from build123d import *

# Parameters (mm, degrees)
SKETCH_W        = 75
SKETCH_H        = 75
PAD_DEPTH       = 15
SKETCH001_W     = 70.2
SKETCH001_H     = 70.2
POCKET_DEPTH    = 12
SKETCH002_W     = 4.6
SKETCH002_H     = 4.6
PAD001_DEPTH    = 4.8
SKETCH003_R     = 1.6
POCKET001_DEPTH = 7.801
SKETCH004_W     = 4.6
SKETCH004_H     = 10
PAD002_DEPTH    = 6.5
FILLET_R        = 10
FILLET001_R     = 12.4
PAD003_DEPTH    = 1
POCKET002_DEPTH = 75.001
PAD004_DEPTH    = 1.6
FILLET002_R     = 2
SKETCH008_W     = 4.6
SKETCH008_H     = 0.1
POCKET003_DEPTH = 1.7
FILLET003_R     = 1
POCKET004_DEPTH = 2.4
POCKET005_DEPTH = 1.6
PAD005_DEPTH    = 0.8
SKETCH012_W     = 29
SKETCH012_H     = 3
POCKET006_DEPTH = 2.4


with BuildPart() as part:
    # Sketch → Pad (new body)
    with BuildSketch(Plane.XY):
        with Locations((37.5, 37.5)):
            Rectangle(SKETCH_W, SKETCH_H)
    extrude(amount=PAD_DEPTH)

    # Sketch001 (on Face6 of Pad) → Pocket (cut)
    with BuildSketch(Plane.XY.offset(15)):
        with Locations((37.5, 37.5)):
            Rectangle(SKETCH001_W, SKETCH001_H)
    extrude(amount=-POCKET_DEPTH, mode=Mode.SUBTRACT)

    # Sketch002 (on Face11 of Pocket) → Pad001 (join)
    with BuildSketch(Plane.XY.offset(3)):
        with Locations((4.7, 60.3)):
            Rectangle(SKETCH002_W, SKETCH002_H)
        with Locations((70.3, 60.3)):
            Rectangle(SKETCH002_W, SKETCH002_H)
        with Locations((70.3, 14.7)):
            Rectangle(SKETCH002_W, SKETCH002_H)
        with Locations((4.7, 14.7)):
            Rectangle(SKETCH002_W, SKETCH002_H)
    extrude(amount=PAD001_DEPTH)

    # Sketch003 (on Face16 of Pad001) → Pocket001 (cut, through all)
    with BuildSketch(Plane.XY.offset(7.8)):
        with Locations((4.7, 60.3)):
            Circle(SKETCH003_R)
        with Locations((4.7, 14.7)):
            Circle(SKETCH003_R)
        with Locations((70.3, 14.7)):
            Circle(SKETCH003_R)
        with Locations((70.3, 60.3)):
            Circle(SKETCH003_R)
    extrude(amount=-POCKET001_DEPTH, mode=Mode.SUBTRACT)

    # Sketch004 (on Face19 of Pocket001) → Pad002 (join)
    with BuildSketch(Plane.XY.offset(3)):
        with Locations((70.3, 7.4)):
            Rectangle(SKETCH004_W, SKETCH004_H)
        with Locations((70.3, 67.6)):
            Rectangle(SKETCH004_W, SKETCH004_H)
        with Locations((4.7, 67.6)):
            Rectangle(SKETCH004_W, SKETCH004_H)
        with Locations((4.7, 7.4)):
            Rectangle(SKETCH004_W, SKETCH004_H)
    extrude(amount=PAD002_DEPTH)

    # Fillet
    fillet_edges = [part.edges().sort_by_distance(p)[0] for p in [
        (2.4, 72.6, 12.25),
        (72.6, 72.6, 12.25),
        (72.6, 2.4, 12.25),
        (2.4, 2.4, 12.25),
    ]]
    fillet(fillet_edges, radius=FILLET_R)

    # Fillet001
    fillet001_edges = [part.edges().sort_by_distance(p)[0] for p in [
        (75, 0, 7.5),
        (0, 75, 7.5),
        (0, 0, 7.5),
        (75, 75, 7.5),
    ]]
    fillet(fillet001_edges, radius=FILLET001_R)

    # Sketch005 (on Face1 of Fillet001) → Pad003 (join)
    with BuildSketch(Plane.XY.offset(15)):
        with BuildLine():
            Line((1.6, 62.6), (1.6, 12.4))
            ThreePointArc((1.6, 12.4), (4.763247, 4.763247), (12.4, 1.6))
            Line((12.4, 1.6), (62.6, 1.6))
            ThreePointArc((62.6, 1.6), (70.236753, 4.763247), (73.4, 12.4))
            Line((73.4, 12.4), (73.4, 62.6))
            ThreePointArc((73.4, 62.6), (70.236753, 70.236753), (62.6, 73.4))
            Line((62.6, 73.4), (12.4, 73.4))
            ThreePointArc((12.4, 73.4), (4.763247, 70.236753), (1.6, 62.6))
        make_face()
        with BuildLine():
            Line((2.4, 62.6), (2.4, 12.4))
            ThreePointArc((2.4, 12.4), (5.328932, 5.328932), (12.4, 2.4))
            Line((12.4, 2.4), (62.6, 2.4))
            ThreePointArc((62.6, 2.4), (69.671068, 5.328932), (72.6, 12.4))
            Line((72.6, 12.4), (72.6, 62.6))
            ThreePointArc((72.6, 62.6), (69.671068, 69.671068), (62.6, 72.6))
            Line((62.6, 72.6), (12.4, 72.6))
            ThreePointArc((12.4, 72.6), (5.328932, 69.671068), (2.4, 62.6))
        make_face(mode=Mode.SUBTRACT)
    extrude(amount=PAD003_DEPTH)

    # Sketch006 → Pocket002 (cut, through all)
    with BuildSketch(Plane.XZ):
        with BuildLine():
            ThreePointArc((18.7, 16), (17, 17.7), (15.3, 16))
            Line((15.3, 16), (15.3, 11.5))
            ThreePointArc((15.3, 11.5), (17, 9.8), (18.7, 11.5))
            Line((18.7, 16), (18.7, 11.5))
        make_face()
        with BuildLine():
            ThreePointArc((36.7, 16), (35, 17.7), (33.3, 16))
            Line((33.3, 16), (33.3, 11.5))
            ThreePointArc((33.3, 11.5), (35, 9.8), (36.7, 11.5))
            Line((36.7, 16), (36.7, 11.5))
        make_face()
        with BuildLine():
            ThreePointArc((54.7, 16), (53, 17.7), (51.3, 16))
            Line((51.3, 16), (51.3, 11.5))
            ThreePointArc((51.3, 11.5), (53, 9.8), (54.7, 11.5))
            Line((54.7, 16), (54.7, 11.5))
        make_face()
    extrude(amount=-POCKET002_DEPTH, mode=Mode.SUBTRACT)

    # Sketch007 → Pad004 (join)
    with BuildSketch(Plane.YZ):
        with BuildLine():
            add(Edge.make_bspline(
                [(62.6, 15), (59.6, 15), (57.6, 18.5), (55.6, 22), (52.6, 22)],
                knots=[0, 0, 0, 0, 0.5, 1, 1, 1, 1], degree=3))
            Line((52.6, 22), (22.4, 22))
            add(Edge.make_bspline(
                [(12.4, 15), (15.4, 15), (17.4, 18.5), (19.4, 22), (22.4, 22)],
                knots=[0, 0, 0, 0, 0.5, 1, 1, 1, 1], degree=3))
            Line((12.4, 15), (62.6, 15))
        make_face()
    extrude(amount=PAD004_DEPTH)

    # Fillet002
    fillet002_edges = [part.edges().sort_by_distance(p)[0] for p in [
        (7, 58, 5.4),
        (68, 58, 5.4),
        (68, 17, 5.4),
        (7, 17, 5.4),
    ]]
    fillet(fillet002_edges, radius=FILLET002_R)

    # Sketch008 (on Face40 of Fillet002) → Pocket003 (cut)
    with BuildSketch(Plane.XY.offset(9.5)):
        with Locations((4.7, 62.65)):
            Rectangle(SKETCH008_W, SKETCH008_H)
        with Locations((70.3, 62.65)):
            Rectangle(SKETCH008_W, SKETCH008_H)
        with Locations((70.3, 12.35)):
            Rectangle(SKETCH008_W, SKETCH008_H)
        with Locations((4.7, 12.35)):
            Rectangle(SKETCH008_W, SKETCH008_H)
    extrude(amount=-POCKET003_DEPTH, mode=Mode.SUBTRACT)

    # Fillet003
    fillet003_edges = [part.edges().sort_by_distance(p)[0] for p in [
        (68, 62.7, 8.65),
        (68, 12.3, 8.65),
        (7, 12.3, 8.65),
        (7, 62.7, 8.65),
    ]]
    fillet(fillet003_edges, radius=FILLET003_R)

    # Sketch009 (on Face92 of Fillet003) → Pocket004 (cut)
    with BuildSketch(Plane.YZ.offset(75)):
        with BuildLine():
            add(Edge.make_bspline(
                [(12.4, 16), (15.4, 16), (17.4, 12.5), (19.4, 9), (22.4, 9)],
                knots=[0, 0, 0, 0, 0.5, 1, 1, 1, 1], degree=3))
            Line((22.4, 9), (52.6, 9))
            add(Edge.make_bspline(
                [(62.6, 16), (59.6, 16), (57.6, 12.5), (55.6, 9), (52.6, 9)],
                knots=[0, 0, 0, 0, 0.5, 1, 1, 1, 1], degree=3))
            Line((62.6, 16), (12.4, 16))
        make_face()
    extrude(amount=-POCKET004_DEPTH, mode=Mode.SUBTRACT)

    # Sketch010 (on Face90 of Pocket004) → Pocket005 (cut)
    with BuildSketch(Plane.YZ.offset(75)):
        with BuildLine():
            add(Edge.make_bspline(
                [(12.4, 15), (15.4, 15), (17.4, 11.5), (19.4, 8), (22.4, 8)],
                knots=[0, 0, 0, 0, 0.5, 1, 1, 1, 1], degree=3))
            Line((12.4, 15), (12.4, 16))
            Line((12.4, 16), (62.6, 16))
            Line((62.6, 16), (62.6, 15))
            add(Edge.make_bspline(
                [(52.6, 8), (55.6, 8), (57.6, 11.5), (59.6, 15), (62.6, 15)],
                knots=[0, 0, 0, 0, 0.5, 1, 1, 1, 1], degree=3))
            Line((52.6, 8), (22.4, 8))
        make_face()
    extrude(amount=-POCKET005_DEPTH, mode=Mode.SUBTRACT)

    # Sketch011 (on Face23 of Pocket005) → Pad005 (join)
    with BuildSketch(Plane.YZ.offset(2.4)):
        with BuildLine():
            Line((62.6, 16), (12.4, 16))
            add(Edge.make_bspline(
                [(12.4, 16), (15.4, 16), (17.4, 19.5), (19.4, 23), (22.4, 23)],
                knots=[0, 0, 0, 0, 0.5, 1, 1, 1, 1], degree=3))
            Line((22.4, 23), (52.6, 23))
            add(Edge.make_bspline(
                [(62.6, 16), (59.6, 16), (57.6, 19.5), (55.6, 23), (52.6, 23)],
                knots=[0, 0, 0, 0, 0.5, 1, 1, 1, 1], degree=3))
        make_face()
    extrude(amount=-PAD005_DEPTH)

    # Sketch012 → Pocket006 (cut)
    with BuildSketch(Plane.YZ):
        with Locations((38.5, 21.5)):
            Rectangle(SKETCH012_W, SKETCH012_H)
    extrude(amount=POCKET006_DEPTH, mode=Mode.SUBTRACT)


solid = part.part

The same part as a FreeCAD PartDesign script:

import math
import FreeCAD as App
import Part
import Sketcher

V = App.Vector


def edges_at(feature, points):
    """Names of the edges that pass closest to the given points."""
    edges = feature.Shape.Edges
    near = lambda p: min(range(len(edges)), key=lambda i: edges[i].distToShape(Part.Vertex(*p))[0])
    return sorted({f"Edge{near(p) + 1}" for p in points})

doc = App.newDocument("Part")
params = doc.addObject("Spreadsheet::Sheet", "Params")
for row, (alias, value) in enumerate([
    ("sketch1_width", "75 mm"),
    ("pad1_length", "15 mm"),
    ("sketch2_width", "70.2 mm"),
    ("pocket1_length", "12 mm"),
    ("sketch3_width", "4.6 mm"),
    ("pad2_length", "4.8 mm"),
    ("sketch4_diameter", "3.2 mm"),
    ("sketch5_height", "10 mm"),
    ("sketch5_width", "4.6 mm"),
    ("pad3_length", "6.5 mm"),
    ("fillet_radius", "10 mm"),
    ("fillet2_radius", "12.4 mm"),
    ("sketch6_radius", "9.999999 mm"),
    ("sketch6_radius2", "10.800001 mm"),
    ("sketch6_width", "50.2 mm"),
    ("pad4_length", "1 mm"),
    ("sketch7_radius", "1.7 mm"),
    ("sketch7_height", "4.5 mm"),
    ("pad5_length", "1.6 mm"),
    ("fillet3_radius", "2 mm"),
    ("sketch9_width", "4.6 mm"),
    ("sketch9_height", "0.1 mm"),
    ("pocket4_length", "1.7 mm"),
    ("fillet4_radius", "1 mm"),
    ("pocket5_length", "2.4 mm"),
    ("sketch11_height", "1 mm"),
    ("pocket6_length", "1.6 mm"),
    ("pad6_length", "0.8 mm"),
    ("sketch13_width", "29 mm"),
    ("sketch13_height", "3 mm"),
    ("pocket7_length", "2.4 mm"),
], start=1):
    params.set(f"A{row}", alias)
    params.set(f"B{row}", "=" + value)
    params.setAlias(f"B{row}", alias)

body = doc.addObject("PartDesign::Body", "Body")

sketch1 = body.newObject("Sketcher::SketchObject", "Sketch")
sketch1.AttachmentSupport = (doc.getObject("XY_Plane"), [""])
sketch1.MapMode = "FlatFace"
sketch1.addGeometry(Part.LineSegment(V(0, 75, 0), V(0, 0, 0)), False)
sketch1.addGeometry(Part.LineSegment(V(0, 0, 0), V(75, 0, 0)), False)
sketch1.addGeometry(Part.LineSegment(V(75, 0, 0), V(75, 75, 0)), False)
sketch1.addGeometry(Part.LineSegment(V(75, 75, 0), V(0, 75, 0)), False)
sketch1.addConstraint(Sketcher.Constraint("Coincident", 0, 2, 1, 1))
sketch1.addConstraint(Sketcher.Constraint("Coincident", 1, 2, 2, 1))
sketch1.addConstraint(Sketcher.Constraint("Coincident", 2, 2, 3, 1))
sketch1.addConstraint(Sketcher.Constraint("Coincident", 3, 2, 0, 1))
sketch1.addConstraint(Sketcher.Constraint("Vertical", 0))
sketch1.addConstraint(Sketcher.Constraint("Horizontal", 1))
sketch1.addConstraint(Sketcher.Constraint("Vertical", 2))
sketch1.addConstraint(Sketcher.Constraint("Horizontal", 3))
sketch1.addConstraint(Sketcher.Constraint("Coincident", 0, 2, -1, 1))
sketch1.addConstraint(Sketcher.Constraint("Equal", 3, 0))
sketch1.addConstraint(Sketcher.Constraint("DistanceX", 1, 1, 1, 2, 75.0))
sketch1.setExpression("Constraints[10]", "Params.sketch1_width")
pad1 = body.newObject("PartDesign::Pad", "Pad")
pad1.Profile = sketch1
pad1.setExpression("Length", "Params.pad1_length")

sketch2 = body.newObject("Sketcher::SketchObject", "Sketch001")
sketch2.AttachmentSupport = (doc.getObject("XY_Plane"), [""])
sketch2.MapMode = "FlatFace"
sketch2.AttachmentOffset = App.Placement(V(0, 0, 15), App.Rotation())
sketch2.addGeometry(Part.LineSegment(V(2, 73, 0), V(2, 2, 0)), False)
sketch2.addGeometry(Part.LineSegment(V(2, 2, 0), V(73, 2, 0)), False)
sketch2.addGeometry(Part.LineSegment(V(73, 2, 0), V(73, 73, 0)), False)
sketch2.addGeometry(Part.LineSegment(V(73, 73, 0), V(2, 73, 0)), False)
sketch2.addConstraint(Sketcher.Constraint("Coincident", 0, 2, 1, 1))
sketch2.addConstraint(Sketcher.Constraint("Coincident", 1, 2, 2, 1))
sketch2.addConstraint(Sketcher.Constraint("Coincident", 2, 2, 3, 1))
sketch2.addConstraint(Sketcher.Constraint("Coincident", 3, 2, 0, 1))
sketch2.addConstraint(Sketcher.Constraint("Vertical", 0))
sketch2.addConstraint(Sketcher.Constraint("Horizontal", 1))
sketch2.addConstraint(Sketcher.Constraint("Vertical", 2))
sketch2.addConstraint(Sketcher.Constraint("Horizontal", 3))
sketch2.addConstraint(Sketcher.Constraint("Equal", 3, 0))
sketch2.addConstraint(Sketcher.Constraint("DistanceX", 1, 1, 1, 2, 70.2))
sketch2.addConstraint(Sketcher.Constraint("DistanceX", -1, 1, 0, 2, 2.4))
sketch2.addConstraint(Sketcher.Constraint("DistanceY", -1, 1, 0, 2, 2.4))
sketch2.setExpression("Constraints[9]", "Params.sketch2_width")
pocket1 = body.newObject("PartDesign::Pocket", "Pocket")
pocket1.Profile = sketch2
pocket1.setExpression("Length", "Params.pocket1_length")

sketch3 = body.newObject("Sketcher::SketchObject", "Sketch002")
sketch3.AttachmentSupport = (doc.getObject("XY_Plane"), [""])
sketch3.MapMode = "FlatFace"
sketch3.AttachmentOffset = App.Placement(V(0, 0, 3), App.Rotation())
sketch3.addGeometry(Part.LineSegment(V(2.4, 62.6, 0), V(2.4, 58, 0)), False)
sketch3.addGeometry(Part.LineSegment(V(2.4, 58, 0), V(7, 58, 0)), False)
sketch3.addGeometry(Part.LineSegment(V(7, 58, 0), V(7, 62.6, 0)), False)
sketch3.addGeometry(Part.LineSegment(V(7, 62.6, 0), V(2.4, 62.6, 0)), False)
sketch3.addGeometry(Part.LineSegment(V(68, 62.6, 0), V(68, 58, 0)), False)
sketch3.addGeometry(Part.LineSegment(V(68, 58, 0), V(72.6, 58, 0)), False)
sketch3.addGeometry(Part.LineSegment(V(72.6, 58, 0), V(72.6, 62.6, 0)), False)
sketch3.addGeometry(Part.LineSegment(V(72.6, 62.6, 0), V(68, 62.6, 0)), False)
sketch3.addGeometry(Part.LineSegment(V(68, 17, 0), V(68, 12.4, 0)), False)
sketch3.addGeometry(Part.LineSegment(V(68, 12.4, 0), V(72.6, 12.4, 0)), False)
sketch3.addGeometry(Part.LineSegment(V(72.6, 12.4, 0), V(72.6, 17, 0)), False)
sketch3.addGeometry(Part.LineSegment(V(72.6, 17, 0), V(68, 17, 0)), False)
sketch3.addGeometry(Part.LineSegment(V(2.4, 17, 0), V(2.4, 12.4, 0)), False)
sketch3.addGeometry(Part.LineSegment(V(2.4, 12.4, 0), V(7, 12.4, 0)), False)
sketch3.addGeometry(Part.LineSegment(V(7, 12.4, 0), V(7, 17, 0)), False)
sketch3.addGeometry(Part.LineSegment(V(7, 17, 0), V(2.4, 17, 0)), False)
sketch3.addConstraint(Sketcher.Constraint("Coincident", 0, 2, 1, 1))
sketch3.addConstraint(Sketcher.Constraint("Coincident", 1, 2, 2, 1))
sketch3.addConstraint(Sketcher.Constraint("Coincident", 2, 2, 3, 1))
sketch3.addConstraint(Sketcher.Constraint("Coincident", 3, 2, 0, 1))
sketch3.addConstraint(Sketcher.Constraint("Coincident", 4, 2, 5, 1))
sketch3.addConstraint(Sketcher.Constraint("Coincident", 5, 2, 6, 1))
sketch3.addConstraint(Sketcher.Constraint("Coincident", 6, 2, 7, 1))
sketch3.addConstraint(Sketcher.Constraint("Coincident", 7, 2, 4, 1))
sketch3.addConstraint(Sketcher.Constraint("Coincident", 8, 2, 9, 1))
sketch3.addConstraint(Sketcher.Constraint("Coincident", 9, 2, 10, 1))
sketch3.addConstraint(Sketcher.Constraint("Coincident", 10, 2, 11, 1))
sketch3.addConstraint(Sketcher.Constraint("Coincident", 11, 2, 8, 1))
sketch3.addConstraint(Sketcher.Constraint("Coincident", 12, 2, 13, 1))
sketch3.addConstraint(Sketcher.Constraint("Coincident", 13, 2, 14, 1))
sketch3.addConstraint(Sketcher.Constraint("Coincident", 14, 2, 15, 1))
sketch3.addConstraint(Sketcher.Constraint("Coincident", 15, 2, 12, 1))
sketch3.addConstraint(Sketcher.Constraint("Vertical", 0))
sketch3.addConstraint(Sketcher.Constraint("Horizontal", 1))
sketch3.addConstraint(Sketcher.Constraint("Vertical", 2))
sketch3.addConstraint(Sketcher.Constraint("Horizontal", 3))
sketch3.addConstraint(Sketcher.Constraint("Vertical", 4))
sketch3.addConstraint(Sketcher.Constraint("Horizontal", 5))
sketch3.addConstraint(Sketcher.Constraint("Vertical", 6))
sketch3.addConstraint(Sketcher.Constraint("Horizontal", 7))
sketch3.addConstraint(Sketcher.Constraint("Vertical", 8))
sketch3.addConstraint(Sketcher.Constraint("Horizontal", 9))
sketch3.addConstraint(Sketcher.Constraint("Vertical", 10))
sketch3.addConstraint(Sketcher.Constraint("Horizontal", 11))
sketch3.addConstraint(Sketcher.Constraint("Vertical", 12))
sketch3.addConstraint(Sketcher.Constraint("Horizontal", 13))
sketch3.addConstraint(Sketcher.Constraint("Vertical", 14))
sketch3.addConstraint(Sketcher.Constraint("Horizontal", 15))
sketch3.addConstraint(Sketcher.Constraint("Horizontal", 1, 2, 4, 2))
sketch3.addConstraint(Sketcher.Constraint("Horizontal", 3, 2, 6, 2))
sketch3.addConstraint(Sketcher.Constraint("Horizontal", 9, 2, 12, 2))
sketch3.addConstraint(Sketcher.Constraint("Horizontal", 11, 2, 14, 2))
sketch3.addConstraint(Sketcher.Constraint("Vertical", 7, 2, 8, 2))
sketch3.addConstraint(Sketcher.Constraint("Vertical", 6, 2, 9, 2))
sketch3.addConstraint(Sketcher.Constraint("Vertical", 3, 2, 12, 2))
sketch3.addConstraint(Sketcher.Constraint("Vertical", 2, 2, 13, 2))
sketch3.addConstraint(Sketcher.Constraint("Equal", 3, 5))
sketch3.addConstraint(Sketcher.Constraint("Equal", 15, 0))
sketch3.addConstraint(Sketcher.Constraint("Equal", 6, 8))
sketch3.addConstraint(Sketcher.Constraint("DistanceX", 1, 1, 1, 2, 4.6))
sketch3.addConstraint(Sketcher.Constraint("DistanceY", -1, 1, 0, 2, 58.0))
sketch3.addConstraint(Sketcher.Constraint("DistanceX", -1, 1, 1, 2, 7.0))
sketch3.addConstraint(Sketcher.Constraint("DistanceX", -1, 1, 4, 2, 68.0))
sketch3.addConstraint(Sketcher.Constraint("DistanceY", -1, 1, 10, 2, 17.0))
sketch3.setExpression("Constraints[43]", "Params.sketch3_width")
pad2 = body.newObject("PartDesign::Pad", "Pad001")
pad2.Profile = sketch3
pad2.setExpression("Length", "Params.pad2_length")

sketch4 = body.newObject("Sketcher::SketchObject", "Sketch003")
sketch4.AttachmentSupport = (doc.getObject("XY_Plane"), [""])
sketch4.MapMode = "FlatFace"
sketch4.AttachmentOffset = App.Placement(V(0, 0, 7.8), App.Rotation())
sketch4.addGeometry(Part.Circle(V(4.7, 60.3, 0), V(0, 0, 1), 1.6), False)
sketch4.addGeometry(Part.Circle(V(4.7, 14.7, 0), V(0, 0, 1), 1.6), False)
sketch4.addGeometry(Part.Circle(V(70.3, 14.7, 0), V(0, 0, 1), 1.6), False)
sketch4.addGeometry(Part.Circle(V(70.3, 60.3, 0), V(0, 0, 1), 1.6), False)
sketch4.addConstraint(Sketcher.Constraint("Equal", 0, 1))
sketch4.addConstraint(Sketcher.Constraint("Equal", 1, 2))
sketch4.addConstraint(Sketcher.Constraint("Equal", 2, 3))
sketch4.addConstraint(Sketcher.Constraint("Horizontal", 1, 3, 2, 3))
sketch4.addConstraint(Sketcher.Constraint("Horizontal", 0, 3, 3, 3))
sketch4.addConstraint(Sketcher.Constraint("Vertical", 0, 3, 1, 3))
sketch4.addConstraint(Sketcher.Constraint("Vertical", 2, 3, 3, 3))
sketch4.addConstraint(Sketcher.Constraint("Diameter", 0, 3.2))
sketch4.addConstraint(Sketcher.Constraint("DistanceX", -1, 1, 0, 3, 4.7))
sketch4.addConstraint(Sketcher.Constraint("DistanceY", -1, 1, 0, 3, 60.3))
sketch4.addConstraint(Sketcher.Constraint("DistanceY", -1, 1, 1, 3, 14.7))
sketch4.addConstraint(Sketcher.Constraint("DistanceX", -1, 1, 2, 3, 70.3))
sketch4.setExpression("Constraints[7]", "Params.sketch4_diameter")
pocket2 = body.newObject("PartDesign::Pocket", "Pocket001")
pocket2.Profile = sketch4
pocket2.Type = "ThroughAll"

sketch5 = body.newObject("Sketcher::SketchObject", "Sketch004")
sketch5.AttachmentSupport = (doc.getObject("XY_Plane"), [""])
sketch5.MapMode = "FlatFace"
sketch5.AttachmentOffset = App.Placement(V(0, 0, 3), App.Rotation())
sketch5.addGeometry(Part.LineSegment(V(68, 12.4, 0), V(68, 2.4, 0)), False)
sketch5.addGeometry(Part.LineSegment(V(68, 2.4, 0), V(72.6, 2.4, 0)), False)
sketch5.addGeometry(Part.LineSegment(V(72.6, 2.4, 0), V(72.6, 12.4, 0)), False)
sketch5.addGeometry(Part.LineSegment(V(72.6, 12.4, 0), V(68, 12.4, 0)), False)
sketch5.addGeometry(Part.LineSegment(V(68, 72.6, 0), V(68, 62.6, 0)), False)
sketch5.addGeometry(Part.LineSegment(V(68, 62.6, 0), V(72.6, 62.6, 0)), False)
sketch5.addGeometry(Part.LineSegment(V(72.6, 62.6, 0), V(72.6, 72.6, 0)), False)
sketch5.addGeometry(Part.LineSegment(V(72.6, 72.6, 0), V(68, 72.6, 0)), False)
sketch5.addGeometry(Part.LineSegment(V(2.4, 72.6, 0), V(2.4, 62.6, 0)), False)
sketch5.addGeometry(Part.LineSegment(V(2.4, 62.6, 0), V(7, 62.6, 0)), False)
sketch5.addGeometry(Part.LineSegment(V(7, 62.6, 0), V(7, 72.6, 0)), False)
sketch5.addGeometry(Part.LineSegment(V(7, 72.6, 0), V(2.4, 72.6, 0)), False)
sketch5.addGeometry(Part.LineSegment(V(2.4, 12.4, 0), V(2.4, 2.4, 0)), False)
sketch5.addGeometry(Part.LineSegment(V(2.4, 2.4, 0), V(7, 2.4, 0)), False)
sketch5.addGeometry(Part.LineSegment(V(7, 2.4, 0), V(7, 12.4, 0)), False)
sketch5.addGeometry(Part.LineSegment(V(7, 12.4, 0), V(2.4, 12.4, 0)), False)
sketch5.addConstraint(Sketcher.Constraint("Coincident", 0, 2, 1, 1))
sketch5.addConstraint(Sketcher.Constraint("Coincident", 1, 2, 2, 1))
sketch5.addConstraint(Sketcher.Constraint("Coincident", 2, 2, 3, 1))
sketch5.addConstraint(Sketcher.Constraint("Coincident", 3, 2, 0, 1))
sketch5.addConstraint(Sketcher.Constraint("Coincident", 4, 2, 5, 1))
sketch5.addConstraint(Sketcher.Constraint("Coincident", 5, 2, 6, 1))
sketch5.addConstraint(Sketcher.Constraint("Coincident", 6, 2, 7, 1))
sketch5.addConstraint(Sketcher.Constraint("Coincident", 7, 2, 4, 1))
sketch5.addConstraint(Sketcher.Constraint("Coincident", 8, 2, 9, 1))
sketch5.addConstraint(Sketcher.Constraint("Coincident", 9, 2, 10, 1))
sketch5.addConstraint(Sketcher.Constraint("Coincident", 10, 2, 11, 1))
sketch5.addConstraint(Sketcher.Constraint("Coincident", 11, 2, 8, 1))
sketch5.addConstraint(Sketcher.Constraint("Coincident", 12, 2, 13, 1))
sketch5.addConstraint(Sketcher.Constraint("Coincident", 13, 2, 14, 1))
sketch5.addConstraint(Sketcher.Constraint("Coincident", 14, 2, 15, 1))
sketch5.addConstraint(Sketcher.Constraint("Coincident", 15, 2, 12, 1))
sketch5.addConstraint(Sketcher.Constraint("Vertical", 0))
sketch5.addConstraint(Sketcher.Constraint("Horizontal", 1))
sketch5.addConstraint(Sketcher.Constraint("Vertical", 2))
sketch5.addConstraint(Sketcher.Constraint("Horizontal", 3))
sketch5.addConstraint(Sketcher.Constraint("Vertical", 4))
sketch5.addConstraint(Sketcher.Constraint("Horizontal", 5))
sketch5.addConstraint(Sketcher.Constraint("Vertical", 6))
sketch5.addConstraint(Sketcher.Constraint("Horizontal", 7))
sketch5.addConstraint(Sketcher.Constraint("Vertical", 8))
sketch5.addConstraint(Sketcher.Constraint("Horizontal", 9))
sketch5.addConstraint(Sketcher.Constraint("Vertical", 10))
sketch5.addConstraint(Sketcher.Constraint("Horizontal", 11))
sketch5.addConstraint(Sketcher.Constraint("Vertical", 12))
sketch5.addConstraint(Sketcher.Constraint("Horizontal", 13))
sketch5.addConstraint(Sketcher.Constraint("Vertical", 14))
sketch5.addConstraint(Sketcher.Constraint("Horizontal", 15))
sketch5.addConstraint(Sketcher.Constraint("Horizontal", 5, 2, 8, 2))
sketch5.addConstraint(Sketcher.Constraint("Horizontal", 7, 2, 10, 2))
sketch5.addConstraint(Sketcher.Constraint("Horizontal", 1, 2, 12, 2))
sketch5.addConstraint(Sketcher.Constraint("Horizontal", 3, 2, 14, 2))
sketch5.addConstraint(Sketcher.Constraint("Vertical", 3, 2, 4, 2))
sketch5.addConstraint(Sketcher.Constraint("Vertical", 2, 2, 5, 2))
sketch5.addConstraint(Sketcher.Constraint("Vertical", 11, 2, 12, 2))
sketch5.addConstraint(Sketcher.Constraint("Vertical", 10, 2, 13, 2))
sketch5.addConstraint(Sketcher.Constraint("Equal", 7, 9))
sketch5.addConstraint(Sketcher.Constraint("Equal", 2, 4))
sketch5.addConstraint(Sketcher.Constraint("DistanceY", 0, 2, 0, 1, 10.0))
sketch5.addConstraint(Sketcher.Constraint("DistanceX", 1, 1, 1, 2, 4.6))
sketch5.addConstraint(Sketcher.Constraint("DistanceX", -1, 1, 0, 2, 68.0))
sketch5.addConstraint(Sketcher.Constraint("DistanceX", -1, 1, 9, 2, 7.0))
sketch5.addConstraint(Sketcher.Constraint("DistanceY", -1, 1, 0, 2, 2.4))
sketch5.addConstraint(Sketcher.Constraint("DistanceY", -1, 1, 4, 2, 62.6))
sketch5.setExpression("Constraints[42]", "Params.sketch5_height")
sketch5.setExpression("Constraints[43]", "Params.sketch5_width")
pad3 = body.newObject("PartDesign::Pad", "Pad002")
pad3.Profile = sketch5
pad3.setExpression("Length", "Params.pad3_length")
doc.recompute()

fillet = body.newObject("PartDesign::Fillet", "Fillet")
fillet.Base = (pad3, edges_at(pad3, [
    (2.4, 72.6, 12.25),
    (72.6, 72.6, 12.25),
    (72.6, 2.4, 12.25),
    (2.4, 2.4, 12.25),
]))
fillet.setExpression("Radius", "Params.fillet_radius")
doc.recompute()

fillet2 = body.newObject("PartDesign::Fillet", "Fillet001")
fillet2.Base = (fillet, edges_at(fillet, [
    (75, 0, 7.5),
    (0, 75, 7.5),
    (0, 0, 7.5),
    (75, 75, 7.5),
]))
fillet2.setExpression("Radius", "Params.fillet2_radius")

sketch6 = body.newObject("Sketcher::SketchObject", "Sketch005")
sketch6.AttachmentSupport = (doc.getObject("XY_Plane"), [""])
sketch6.MapMode = "FlatFace"
sketch6.AttachmentOffset = App.Placement(V(0, 0, 15), App.Rotation())
sketch6.addGeometry(Part.LineSegment(V(2, 63, 0), V(2, 12, 0)), False)
sketch6.addGeometry(Part.ArcOfCircle(Part.Circle(V(12, 12, 0), V(0, 0, 1), 11), math.radians(-180), math.radians(-90)), False)
sketch6.addGeometry(Part.LineSegment(V(12, 2, 0), V(63, 2, 0)), False)
sketch6.addGeometry(Part.ArcOfCircle(Part.Circle(V(63, 12, 0), V(0, 0, 1), 11), math.radians(-90), math.radians(0)), False)
sketch6.addGeometry(Part.LineSegment(V(73, 12, 0), V(73, 63, 0)), False)
sketch6.addGeometry(Part.ArcOfCircle(Part.Circle(V(63, 63, 0), V(0, 0, 1), 11), math.radians(0), math.radians(90)), False)
sketch6.addGeometry(Part.LineSegment(V(63, 73, 0), V(12, 73, 0)), False)
sketch6.addGeometry(Part.ArcOfCircle(Part.Circle(V(12, 63, 0), V(0, 0, 1), 11), math.radians(90), math.radians(180)), False)
sketch6.addGeometry(Part.LineSegment(V(2, 12, 0), V(2, 63, 0)), False)
sketch6.addGeometry(Part.ArcOfCircle(Part.Circle(V(12, 63, 0), V(0, 0, 1), 10), math.radians(90), math.radians(180)), False)
sketch6.addGeometry(Part.LineSegment(V(12, 73, 0), V(63, 73, 0)), False)
sketch6.addGeometry(Part.ArcOfCircle(Part.Circle(V(63, 63, 0), V(0, 0, 1), 10), math.radians(0), math.radians(90)), False)
sketch6.addGeometry(Part.LineSegment(V(73, 63, 0), V(73, 12, 0)), False)
sketch6.addGeometry(Part.ArcOfCircle(Part.Circle(V(63, 12, 0), V(0, 0, 1), 10), math.radians(-90), math.radians(0)), False)
sketch6.addGeometry(Part.LineSegment(V(63, 2, 0), V(12, 2, 0)), False)
sketch6.addGeometry(Part.ArcOfCircle(Part.Circle(V(12, 12, 0), V(0, 0, 1), 10), math.radians(180), math.radians(270)), False)
sketch6.addConstraint(Sketcher.Constraint("Tangent", 0, 2, 1, 1))
sketch6.addConstraint(Sketcher.Constraint("Tangent", 1, 2, 2, 1))
sketch6.addConstraint(Sketcher.Constraint("Tangent", 2, 2, 3, 1))
sketch6.addConstraint(Sketcher.Constraint("Tangent", 3, 2, 4, 1))
sketch6.addConstraint(Sketcher.Constraint("Tangent", 4, 2, 5, 1))
sketch6.addConstraint(Sketcher.Constraint("Tangent", 5, 2, 6, 1))
sketch6.addConstraint(Sketcher.Constraint("Tangent", 6, 2, 7, 1))
sketch6.addConstraint(Sketcher.Constraint("Tangent", 7, 2, 0, 1))
sketch6.addConstraint(Sketcher.Constraint("Tangent", 8, 2, 9, 2))
sketch6.addConstraint(Sketcher.Constraint("Tangent", 9, 1, 10, 1))
sketch6.addConstraint(Sketcher.Constraint("Tangent", 10, 2, 11, 2))
sketch6.addConstraint(Sketcher.Constraint("Tangent", 11, 1, 12, 1))
sketch6.addConstraint(Sketcher.Constraint("Tangent", 12, 2, 13, 2))
sketch6.addConstraint(Sketcher.Constraint("Tangent", 13, 1, 14, 1))
sketch6.addConstraint(Sketcher.Constraint("Tangent", 14, 2, 15, 2))
sketch6.addConstraint(Sketcher.Constraint("Tangent", 15, 1, 8, 1))
sketch6.addConstraint(Sketcher.Constraint("Vertical", 0))
sketch6.addConstraint(Sketcher.Constraint("Horizontal", 2))
sketch6.addConstraint(Sketcher.Constraint("Vertical", 4))
sketch6.addConstraint(Sketcher.Constraint("Horizontal", 6))
sketch6.addConstraint(Sketcher.Constraint("Vertical", 8))
sketch6.addConstraint(Sketcher.Constraint("Horizontal", 10))
sketch6.addConstraint(Sketcher.Constraint("Vertical", 12))
sketch6.addConstraint(Sketcher.Constraint("Horizontal", 14))
sketch6.addConstraint(Sketcher.Constraint("Coincident", 9, 3, 7, 3))
sketch6.addConstraint(Sketcher.Constraint("Coincident", 11, 3, 5, 3))
sketch6.addConstraint(Sketcher.Constraint("Coincident", 13, 3, 3, 3))
sketch6.addConstraint(Sketcher.Constraint("Equal", 1, 3))
sketch6.addConstraint(Sketcher.Constraint("Equal", 3, 5))
sketch6.addConstraint(Sketcher.Constraint("Equal", 5, 7))
sketch6.addConstraint(Sketcher.Constraint("Equal", 13, 15))
sketch6.addConstraint(Sketcher.Constraint("Equal", 14, 0))
sketch6.addConstraint(Sketcher.Constraint("Radius", 9, 9.999999))
sketch6.addConstraint(Sketcher.Constraint("Radius", 1, 10.800001))
sketch6.addConstraint(Sketcher.Constraint("DistanceX", 2, 1, 2, 2, 50.2))
sketch6.addConstraint(Sketcher.Constraint("DistanceX", -1, 1, 1, 3, 12.400001))
sketch6.addConstraint(Sketcher.Constraint("DistanceY", -1, 1, 1, 3, 12.400001))
sketch6.setExpression("Constraints[32]", "Params.sketch6_radius")
sketch6.setExpression("Constraints[33]", "Params.sketch6_radius2")
sketch6.setExpression("Constraints[34]", "Params.sketch6_width")
pad4 = body.newObject("PartDesign::Pad", "Pad003")
pad4.Profile = sketch6
pad4.setExpression("Length", "Params.pad4_length")

sketch7 = body.newObject("Sketcher::SketchObject", "Sketch006")
sketch7.AttachmentSupport = (doc.getObject("XZ_Plane"), [""])
sketch7.MapMode = "FlatFace"
sketch7.addGeometry(Part.ArcOfCircle(Part.Circle(V(17, 16, 0), V(0, 0, 1), 1.7), math.radians(0), math.radians(180)), False)
sketch7.addGeometry(Part.LineSegment(V(15.3, 16, 0), V(15.3, 11.5, 0)), False)
sketch7.addGeometry(Part.ArcOfCircle(Part.Circle(V(17, 11.5, 0), V(0, 0, 1), 1.7), math.radians(180), math.radians(360)), False)
sketch7.addGeometry(Part.LineSegment(V(18.7, 11.5, 0), V(18.7, 16, 0)), False)
sketch7.addGeometry(Part.ArcOfCircle(Part.Circle(V(35, 16, 0), V(0, 0, 1), 1.7), math.radians(0), math.radians(180)), False)
sketch7.addGeometry(Part.LineSegment(V(33.3, 16, 0), V(33.3, 11.5, 0)), False)
sketch7.addGeometry(Part.ArcOfCircle(Part.Circle(V(35, 11.5, 0), V(0, 0, 1), 1.7), math.radians(180), math.radians(360)), False)
sketch7.addGeometry(Part.LineSegment(V(36.7, 11.5, 0), V(36.7, 16, 0)), False)
sketch7.addGeometry(Part.ArcOfCircle(Part.Circle(V(53, 16, 0), V(0, 0, 1), 1.7), math.radians(0), math.radians(180)), False)
sketch7.addGeometry(Part.LineSegment(V(51.3, 16, 0), V(51.3, 11.5, 0)), False)
sketch7.addGeometry(Part.ArcOfCircle(Part.Circle(V(53, 11.5, 0), V(0, 0, 1), 1.7), math.radians(180), math.radians(360)), False)
sketch7.addGeometry(Part.LineSegment(V(54.7, 11.5, 0), V(54.7, 16, 0)), False)
sketch7.addConstraint(Sketcher.Constraint("Tangent", 0, 2, 1, 1))
sketch7.addConstraint(Sketcher.Constraint("Tangent", 1, 2, 2, 1))
sketch7.addConstraint(Sketcher.Constraint("Tangent", 2, 2, 3, 1))
sketch7.addConstraint(Sketcher.Constraint("Tangent", 3, 2, 0, 1))
sketch7.addConstraint(Sketcher.Constraint("Tangent", 4, 2, 5, 1))
sketch7.addConstraint(Sketcher.Constraint("Tangent", 5, 2, 6, 1))
sketch7.addConstraint(Sketcher.Constraint("Tangent", 6, 2, 7, 1))
sketch7.addConstraint(Sketcher.Constraint("Tangent", 7, 2, 4, 1))
sketch7.addConstraint(Sketcher.Constraint("Tangent", 8, 2, 9, 1))
sketch7.addConstraint(Sketcher.Constraint("Tangent", 9, 2, 10, 1))
sketch7.addConstraint(Sketcher.Constraint("Tangent", 10, 2, 11, 1))
sketch7.addConstraint(Sketcher.Constraint("Tangent", 11, 2, 8, 1))
sketch7.addConstraint(Sketcher.Constraint("Vertical", 1))
sketch7.addConstraint(Sketcher.Constraint("Vertical", 3))
sketch7.addConstraint(Sketcher.Constraint("Vertical", 5))
sketch7.addConstraint(Sketcher.Constraint("Vertical", 7))
sketch7.addConstraint(Sketcher.Constraint("Vertical", 9))
sketch7.addConstraint(Sketcher.Constraint("Vertical", 11))
sketch7.addConstraint(Sketcher.Constraint("Equal", 2, 4))
sketch7.addConstraint(Sketcher.Constraint("Equal", 6, 8))
sketch7.addConstraint(Sketcher.Constraint("Horizontal", 0, 3, 4, 3))
sketch7.addConstraint(Sketcher.Constraint("Horizontal", 2, 3, 6, 3))
sketch7.addConstraint(Sketcher.Constraint("Horizontal", 4, 3, 8, 3))
sketch7.addConstraint(Sketcher.Constraint("Horizontal", 6, 3, 10, 3))
sketch7.addConstraint(Sketcher.Constraint("Radius", 0, 1.7))
sketch7.addConstraint(Sketcher.Constraint("DistanceY", 1, 2, 1, 1, 4.5))
sketch7.addConstraint(Sketcher.Constraint("DistanceX", -1, 1, 0, 3, 17.0))
sketch7.addConstraint(Sketcher.Constraint("DistanceY", -1, 1, 0, 3, 16.0))
sketch7.addConstraint(Sketcher.Constraint("DistanceX", -1, 1, 4, 3, 35.0))
sketch7.addConstraint(Sketcher.Constraint("DistanceX", -1, 1, 8, 3, 53.0))
sketch7.setExpression("Constraints[24]", "Params.sketch7_radius")
sketch7.setExpression("Constraints[25]", "Params.sketch7_height")
pocket3 = body.newObject("PartDesign::Pocket", "Pocket002")
pocket3.Profile = sketch7
pocket3.Type = "ThroughAll"

sketch8 = body.newObject("Sketcher::SketchObject", "Sketch007")
sketch8.AttachmentSupport = (doc.getObject("YZ_Plane"), [""])
sketch8.MapMode = "FlatFace"
sketch8.addGeometry(Part.BSplineCurve([V(62.6, 15, 0), V(59.6, 15, 0), V(57.6, 18.5, 0), V(55.6, 22, 0), V(52.6, 22, 0)], [4, 1, 4], [0, 0.5, 1], False, 3, [1, 1, 1, 1, 1], False), False)
sketch8.addGeometry(Part.LineSegment(V(52.6, 22, 0), V(22.4, 22, 0)), False)
sketch8.addGeometry(Part.BSplineCurve([V(12.4, 15, 0), V(15.4, 15, 0), V(17.4, 18.5, 0), V(19.4, 22, 0), V(22.4, 22, 0)], [4, 1, 4], [0, 0.5, 1], False, 3, [1, 1, 1, 1, 1], False), False)
sketch8.addGeometry(Part.LineSegment(V(12.4, 15, 0), V(62.6, 15, 0)), False)
sketch8.addConstraint(Sketcher.Constraint("Block", 0))
sketch8.addConstraint(Sketcher.Constraint("Block", 2))
sketch8.addConstraint(Sketcher.Constraint("Coincident", 0, 2, 1, 1))
sketch8.addConstraint(Sketcher.Constraint("Coincident", 1, 2, 2, 2))
sketch8.addConstraint(Sketcher.Constraint("Coincident", 2, 1, 3, 1))
sketch8.addConstraint(Sketcher.Constraint("Coincident", 3, 2, 0, 1))
pad5 = body.newObject("PartDesign::Pad", "Pad004")
pad5.Profile = sketch8
pad5.setExpression("Length", "Params.pad5_length")
doc.recompute()

fillet3 = body.newObject("PartDesign::Fillet", "Fillet002")
fillet3.Base = (pad5, edges_at(pad5, [
    (7, 58, 5.4),
    (68, 58, 5.4),
    (68, 17, 5.4),
    (7, 17, 5.4),
]))
fillet3.setExpression("Radius", "Params.fillet3_radius")

sketch9 = body.newObject("Sketcher::SketchObject", "Sketch008")
sketch9.AttachmentSupport = (doc.getObject("XY_Plane"), [""])
sketch9.MapMode = "FlatFace"
sketch9.AttachmentOffset = App.Placement(V(0, 0, 9.5), App.Rotation())
sketch9.addGeometry(Part.LineSegment(V(2.4, 62.7, 0), V(2.4, 62.6, 0)), False)
sketch9.addGeometry(Part.LineSegment(V(2.4, 62.6, 0), V(7, 62.6, 0)), False)
sketch9.addGeometry(Part.LineSegment(V(7, 62.6, 0), V(7, 62.7, 0)), False)
sketch9.addGeometry(Part.LineSegment(V(7, 62.7, 0), V(2.4, 62.7, 0)), False)
sketch9.addGeometry(Part.LineSegment(V(68, 62.7, 0), V(68, 62.6, 0)), False)
sketch9.addGeometry(Part.LineSegment(V(68, 62.6, 0), V(72.6, 62.6, 0)), False)
sketch9.addGeometry(Part.LineSegment(V(72.6, 62.6, 0), V(72.6, 62.7, 0)), False)
sketch9.addGeometry(Part.LineSegment(V(72.6, 62.7, 0), V(68, 62.7, 0)), False)
sketch9.addGeometry(Part.LineSegment(V(68, 12.4, 0), V(68, 12.3, 0)), False)
sketch9.addGeometry(Part.LineSegment(V(68, 12.3, 0), V(72.6, 12.3, 0)), False)
sketch9.addGeometry(Part.LineSegment(V(72.6, 12.3, 0), V(72.6, 12.4, 0)), False)
sketch9.addGeometry(Part.LineSegment(V(72.6, 12.4, 0), V(68, 12.4, 0)), False)
sketch9.addGeometry(Part.LineSegment(V(2.4, 12.4, 0), V(2.4, 12.3, 0)), False)
sketch9.addGeometry(Part.LineSegment(V(2.4, 12.3, 0), V(7, 12.3, 0)), False)
sketch9.addGeometry(Part.LineSegment(V(7, 12.3, 0), V(7, 12.4, 0)), False)
sketch9.addGeometry(Part.LineSegment(V(7, 12.4, 0), V(2.4, 12.4, 0)), False)
sketch9.addConstraint(Sketcher.Constraint("Coincident", 0, 2, 1, 1))
sketch9.addConstraint(Sketcher.Constraint("Coincident", 1, 2, 2, 1))
sketch9.addConstraint(Sketcher.Constraint("Coincident", 2, 2, 3, 1))
sketch9.addConstraint(Sketcher.Constraint("Coincident", 3, 2, 0, 1))
sketch9.addConstraint(Sketcher.Constraint("Coincident", 4, 2, 5, 1))
sketch9.addConstraint(Sketcher.Constraint("Coincident", 5, 2, 6, 1))
sketch9.addConstraint(Sketcher.Constraint("Coincident", 6, 2, 7, 1))
sketch9.addConstraint(Sketcher.Constraint("Coincident", 7, 2, 4, 1))
sketch9.addConstraint(Sketcher.Constraint("Coincident", 8, 2, 9, 1))
sketch9.addConstraint(Sketcher.Constraint("Coincident", 9, 2, 10, 1))
sketch9.addConstraint(Sketcher.Constraint("Coincident", 10, 2, 11, 1))
sketch9.addConstraint(Sketcher.Constraint("Coincident", 11, 2, 8, 1))
sketch9.addConstraint(Sketcher.Constraint("Coincident", 12, 2, 13, 1))
sketch9.addConstraint(Sketcher.Constraint("Coincident", 13, 2, 14, 1))
sketch9.addConstraint(Sketcher.Constraint("Coincident", 14, 2, 15, 1))
sketch9.addConstraint(Sketcher.Constraint("Coincident", 15, 2, 12, 1))
sketch9.addConstraint(Sketcher.Constraint("Vertical", 0))
sketch9.addConstraint(Sketcher.Constraint("Horizontal", 1))
sketch9.addConstraint(Sketcher.Constraint("Vertical", 2))
sketch9.addConstraint(Sketcher.Constraint("Horizontal", 3))
sketch9.addConstraint(Sketcher.Constraint("Vertical", 4))
sketch9.addConstraint(Sketcher.Constraint("Horizontal", 5))
sketch9.addConstraint(Sketcher.Constraint("Vertical", 6))
sketch9.addConstraint(Sketcher.Constraint("Horizontal", 7))
sketch9.addConstraint(Sketcher.Constraint("Vertical", 8))
sketch9.addConstraint(Sketcher.Constraint("Horizontal", 9))
sketch9.addConstraint(Sketcher.Constraint("Vertical", 10))
sketch9.addConstraint(Sketcher.Constraint("Horizontal", 11))
sketch9.addConstraint(Sketcher.Constraint("Vertical", 12))
sketch9.addConstraint(Sketcher.Constraint("Horizontal", 13))
sketch9.addConstraint(Sketcher.Constraint("Vertical", 14))
sketch9.addConstraint(Sketcher.Constraint("Horizontal", 15))
sketch9.addConstraint(Sketcher.Constraint("Horizontal", 1, 2, 4, 2))
sketch9.addConstraint(Sketcher.Constraint("Horizontal", 3, 2, 6, 2))
sketch9.addConstraint(Sketcher.Constraint("Horizontal", 9, 2, 12, 2))
sketch9.addConstraint(Sketcher.Constraint("Horizontal", 11, 2, 14, 2))
sketch9.addConstraint(Sketcher.Constraint("Vertical", 7, 2, 8, 2))
sketch9.addConstraint(Sketcher.Constraint("Vertical", 6, 2, 9, 2))
sketch9.addConstraint(Sketcher.Constraint("Vertical", 3, 2, 12, 2))
sketch9.addConstraint(Sketcher.Constraint("Vertical", 2, 2, 13, 2))
sketch9.addConstraint(Sketcher.Constraint("Equal", 3, 5))
sketch9.addConstraint(Sketcher.Constraint("Equal", 6, 8))
sketch9.addConstraint(Sketcher.Constraint("DistanceX", 1, 1, 1, 2, 4.6))
sketch9.addConstraint(Sketcher.Constraint("DistanceY", 0, 2, 0, 1, 0.1))
sketch9.addConstraint(Sketcher.Constraint("DistanceX", -1, 1, 1, 2, 7.0))
sketch9.addConstraint(Sketcher.Constraint("DistanceX", -1, 1, 4, 2, 68.0))
sketch9.addConstraint(Sketcher.Constraint("DistanceY", -1, 1, 0, 2, 62.6))
sketch9.addConstraint(Sketcher.Constraint("DistanceY", -1, 1, 8, 2, 12.3))
sketch9.setExpression("Constraints[42]", "Params.sketch9_width")
sketch9.setExpression("Constraints[43]", "Params.sketch9_height")
pocket4 = body.newObject("PartDesign::Pocket", "Pocket003")
pocket4.Profile = sketch9
pocket4.setExpression("Length", "Params.pocket4_length")
doc.recompute()

fillet4 = body.newObject("PartDesign::Fillet", "Fillet003")
fillet4.Base = (pocket4, edges_at(pocket4, [
    (68, 62.7, 8.65),
    (68, 12.3, 8.65),
    (7, 12.3, 8.65),
    (7, 62.7, 8.65),
]))
fillet4.setExpression("Radius", "Params.fillet4_radius")

sketch10 = body.newObject("Sketcher::SketchObject", "Sketch009")
sketch10.AttachmentSupport = (doc.getObject("YZ_Plane"), [""])
sketch10.MapMode = "FlatFace"
sketch10.AttachmentOffset = App.Placement(V(0, 0, 75), App.Rotation())
sketch10.addGeometry(Part.BSplineCurve([V(12.4, 16, 0), V(15.4, 16, 0), V(17.4, 12.5, 0), V(19.4, 9, 0), V(22.4, 9, 0)], [4, 1, 4], [0, 0.5, 1], False, 3, [1, 1, 1, 1, 1], False), False)
sketch10.addGeometry(Part.LineSegment(V(22.4, 9, 0), V(52.6, 9, 0)), False)
sketch10.addGeometry(Part.BSplineCurve([V(62.6, 16, 0), V(59.6, 16, 0), V(57.6, 12.5, 0), V(55.6, 9, 0), V(52.6, 9, 0)], [4, 1, 4], [0, 0.5, 1], False, 3, [1, 1, 1, 1, 1], False), False)
sketch10.addGeometry(Part.LineSegment(V(62.6, 16, 0), V(12.4, 16, 0)), False)
sketch10.addConstraint(Sketcher.Constraint("Block", 0))
sketch10.addConstraint(Sketcher.Constraint("Block", 2))
sketch10.addConstraint(Sketcher.Constraint("Coincident", 0, 2, 1, 1))
sketch10.addConstraint(Sketcher.Constraint("Coincident", 1, 2, 2, 2))
sketch10.addConstraint(Sketcher.Constraint("Coincident", 2, 1, 3, 1))
sketch10.addConstraint(Sketcher.Constraint("Coincident", 3, 2, 0, 1))
pocket5 = body.newObject("PartDesign::Pocket", "Pocket004")
pocket5.Profile = sketch10
pocket5.setExpression("Length", "Params.pocket5_length")

sketch11 = body.newObject("Sketcher::SketchObject", "Sketch010")
sketch11.AttachmentSupport = (doc.getObject("YZ_Plane"), [""])
sketch11.MapMode = "FlatFace"
sketch11.AttachmentOffset = App.Placement(V(0, 0, 75), App.Rotation())
sketch11.addGeometry(Part.BSplineCurve([V(12.4, 15, 0), V(15.4, 15, 0), V(17.4, 11.5, 0), V(19.4, 8, 0), V(22.4, 8, 0)], [4, 1, 4], [0, 0.5, 1], False, 3, [1, 1, 1, 1, 1], False), False)
sketch11.addGeometry(Part.LineSegment(V(22.4, 8, 0), V(52.6, 8, 0)), False)
sketch11.addGeometry(Part.BSplineCurve([V(52.6, 8, 0), V(55.6, 8, 0), V(57.6, 11.5, 0), V(59.6, 15, 0), V(62.6, 15, 0)], [4, 1, 4], [0, 0.5, 1], False, 3, [1, 1, 1, 1, 1], False), False)
sketch11.addGeometry(Part.LineSegment(V(62.6, 15, 0), V(62.6, 16, 0)), False)
sketch11.addGeometry(Part.LineSegment(V(62.6, 16, 0), V(12.4, 16, 0)), False)
sketch11.addGeometry(Part.LineSegment(V(12.4, 16, 0), V(12.4, 15, 0)), False)
sketch11.addConstraint(Sketcher.Constraint("Block", 0))
sketch11.addConstraint(Sketcher.Constraint("Block", 2))
sketch11.addConstraint(Sketcher.Constraint("Coincident", 0, 2, 1, 1))
sketch11.addConstraint(Sketcher.Constraint("Coincident", 1, 2, 2, 1))
sketch11.addConstraint(Sketcher.Constraint("Coincident", 2, 2, 3, 1))
sketch11.addConstraint(Sketcher.Constraint("Coincident", 3, 2, 4, 1))
sketch11.addConstraint(Sketcher.Constraint("Coincident", 4, 2, 5, 1))
sketch11.addConstraint(Sketcher.Constraint("Coincident", 5, 2, 0, 1))
sketch11.addConstraint(Sketcher.Constraint("Vertical", 3))
sketch11.addConstraint(Sketcher.Constraint("Horizontal", 4))
sketch11.addConstraint(Sketcher.Constraint("Vertical", 5))
sketch11.addConstraint(Sketcher.Constraint("DistanceY", 3, 1, 3, 2, 1.0))
sketch11.setExpression("Constraints[11]", "Params.sketch11_height")
pocket6 = body.newObject("PartDesign::Pocket", "Pocket005")
pocket6.Profile = sketch11
pocket6.setExpression("Length", "Params.pocket6_length")

sketch12 = body.newObject("Sketcher::SketchObject", "Sketch011")
sketch12.AttachmentSupport = (doc.getObject("YZ_Plane"), [""])
sketch12.MapMode = "FlatFace"
sketch12.AttachmentOffset = App.Placement(V(0, 0, 2.4), App.Rotation())
sketch12.addGeometry(Part.LineSegment(V(12.4, 16, 0), V(62.6, 16, 0)), False)
sketch12.addGeometry(Part.BSplineCurve([V(62.6, 16, 0), V(59.6, 16, 0), V(57.6, 19.5, 0), V(55.6, 23, 0), V(52.6, 23, 0)], [4, 1, 4], [0, 0.5, 1], False, 3, [1, 1, 1, 1, 1], False), False)
sketch12.addGeometry(Part.LineSegment(V(52.6, 23, 0), V(22.4, 23, 0)), False)
sketch12.addGeometry(Part.BSplineCurve([V(12.4, 16, 0), V(15.4, 16, 0), V(17.4, 19.5, 0), V(19.4, 23, 0), V(22.4, 23, 0)], [4, 1, 4], [0, 0.5, 1], False, 3, [1, 1, 1, 1, 1], False), False)
sketch12.addConstraint(Sketcher.Constraint("Block", 1))
sketch12.addConstraint(Sketcher.Constraint("Block", 3))
sketch12.addConstraint(Sketcher.Constraint("Coincident", 0, 2, 1, 1))
sketch12.addConstraint(Sketcher.Constraint("Coincident", 1, 2, 2, 1))
sketch12.addConstraint(Sketcher.Constraint("Coincident", 2, 2, 3, 2))
sketch12.addConstraint(Sketcher.Constraint("Coincident", 3, 1, 0, 1))
pad6 = body.newObject("PartDesign::Pad", "Pad005")
pad6.Profile = sketch12
pad6.setExpression("Length", "Params.pad6_length")
pad6.Reversed = True

sketch13 = body.newObject("Sketcher::SketchObject", "Sketch012")
sketch13.AttachmentSupport = (doc.getObject("YZ_Plane"), [""])
sketch13.MapMode = "FlatFace"
sketch13.addGeometry(Part.LineSegment(V(24, 23, 0), V(24, 20, 0)), False)
sketch13.addGeometry(Part.LineSegment(V(24, 20, 0), V(53, 20, 0)), False)
sketch13.addGeometry(Part.LineSegment(V(53, 20, 0), V(53, 23, 0)), False)
sketch13.addGeometry(Part.LineSegment(V(53, 23, 0), V(24, 23, 0)), False)
sketch13.addConstraint(Sketcher.Constraint("Coincident", 0, 2, 1, 1))
sketch13.addConstraint(Sketcher.Constraint("Coincident", 1, 2, 2, 1))
sketch13.addConstraint(Sketcher.Constraint("Coincident", 2, 2, 3, 1))
sketch13.addConstraint(Sketcher.Constraint("Coincident", 3, 2, 0, 1))
sketch13.addConstraint(Sketcher.Constraint("Vertical", 0))
sketch13.addConstraint(Sketcher.Constraint("Horizontal", 1))
sketch13.addConstraint(Sketcher.Constraint("Vertical", 2))
sketch13.addConstraint(Sketcher.Constraint("Horizontal", 3))
sketch13.addConstraint(Sketcher.Constraint("DistanceX", 1, 1, 1, 2, 29.0))
sketch13.addConstraint(Sketcher.Constraint("DistanceY", 0, 2, 0, 1, 3.0))
sketch13.addConstraint(Sketcher.Constraint("DistanceX", -1, 1, 0, 2, 24.0))
sketch13.addConstraint(Sketcher.Constraint("DistanceY", -1, 1, 0, 2, 20.0))
sketch13.setExpression("Constraints[8]", "Params.sketch13_width")
sketch13.setExpression("Constraints[9]", "Params.sketch13_height")
pocket7 = body.newObject("PartDesign::Pocket", "Pocket006")
pocket7.Profile = sketch13
pocket7.setExpression("Length", "Params.pocket7_length")
pocket7.Reversed = True

doc.recompute()
